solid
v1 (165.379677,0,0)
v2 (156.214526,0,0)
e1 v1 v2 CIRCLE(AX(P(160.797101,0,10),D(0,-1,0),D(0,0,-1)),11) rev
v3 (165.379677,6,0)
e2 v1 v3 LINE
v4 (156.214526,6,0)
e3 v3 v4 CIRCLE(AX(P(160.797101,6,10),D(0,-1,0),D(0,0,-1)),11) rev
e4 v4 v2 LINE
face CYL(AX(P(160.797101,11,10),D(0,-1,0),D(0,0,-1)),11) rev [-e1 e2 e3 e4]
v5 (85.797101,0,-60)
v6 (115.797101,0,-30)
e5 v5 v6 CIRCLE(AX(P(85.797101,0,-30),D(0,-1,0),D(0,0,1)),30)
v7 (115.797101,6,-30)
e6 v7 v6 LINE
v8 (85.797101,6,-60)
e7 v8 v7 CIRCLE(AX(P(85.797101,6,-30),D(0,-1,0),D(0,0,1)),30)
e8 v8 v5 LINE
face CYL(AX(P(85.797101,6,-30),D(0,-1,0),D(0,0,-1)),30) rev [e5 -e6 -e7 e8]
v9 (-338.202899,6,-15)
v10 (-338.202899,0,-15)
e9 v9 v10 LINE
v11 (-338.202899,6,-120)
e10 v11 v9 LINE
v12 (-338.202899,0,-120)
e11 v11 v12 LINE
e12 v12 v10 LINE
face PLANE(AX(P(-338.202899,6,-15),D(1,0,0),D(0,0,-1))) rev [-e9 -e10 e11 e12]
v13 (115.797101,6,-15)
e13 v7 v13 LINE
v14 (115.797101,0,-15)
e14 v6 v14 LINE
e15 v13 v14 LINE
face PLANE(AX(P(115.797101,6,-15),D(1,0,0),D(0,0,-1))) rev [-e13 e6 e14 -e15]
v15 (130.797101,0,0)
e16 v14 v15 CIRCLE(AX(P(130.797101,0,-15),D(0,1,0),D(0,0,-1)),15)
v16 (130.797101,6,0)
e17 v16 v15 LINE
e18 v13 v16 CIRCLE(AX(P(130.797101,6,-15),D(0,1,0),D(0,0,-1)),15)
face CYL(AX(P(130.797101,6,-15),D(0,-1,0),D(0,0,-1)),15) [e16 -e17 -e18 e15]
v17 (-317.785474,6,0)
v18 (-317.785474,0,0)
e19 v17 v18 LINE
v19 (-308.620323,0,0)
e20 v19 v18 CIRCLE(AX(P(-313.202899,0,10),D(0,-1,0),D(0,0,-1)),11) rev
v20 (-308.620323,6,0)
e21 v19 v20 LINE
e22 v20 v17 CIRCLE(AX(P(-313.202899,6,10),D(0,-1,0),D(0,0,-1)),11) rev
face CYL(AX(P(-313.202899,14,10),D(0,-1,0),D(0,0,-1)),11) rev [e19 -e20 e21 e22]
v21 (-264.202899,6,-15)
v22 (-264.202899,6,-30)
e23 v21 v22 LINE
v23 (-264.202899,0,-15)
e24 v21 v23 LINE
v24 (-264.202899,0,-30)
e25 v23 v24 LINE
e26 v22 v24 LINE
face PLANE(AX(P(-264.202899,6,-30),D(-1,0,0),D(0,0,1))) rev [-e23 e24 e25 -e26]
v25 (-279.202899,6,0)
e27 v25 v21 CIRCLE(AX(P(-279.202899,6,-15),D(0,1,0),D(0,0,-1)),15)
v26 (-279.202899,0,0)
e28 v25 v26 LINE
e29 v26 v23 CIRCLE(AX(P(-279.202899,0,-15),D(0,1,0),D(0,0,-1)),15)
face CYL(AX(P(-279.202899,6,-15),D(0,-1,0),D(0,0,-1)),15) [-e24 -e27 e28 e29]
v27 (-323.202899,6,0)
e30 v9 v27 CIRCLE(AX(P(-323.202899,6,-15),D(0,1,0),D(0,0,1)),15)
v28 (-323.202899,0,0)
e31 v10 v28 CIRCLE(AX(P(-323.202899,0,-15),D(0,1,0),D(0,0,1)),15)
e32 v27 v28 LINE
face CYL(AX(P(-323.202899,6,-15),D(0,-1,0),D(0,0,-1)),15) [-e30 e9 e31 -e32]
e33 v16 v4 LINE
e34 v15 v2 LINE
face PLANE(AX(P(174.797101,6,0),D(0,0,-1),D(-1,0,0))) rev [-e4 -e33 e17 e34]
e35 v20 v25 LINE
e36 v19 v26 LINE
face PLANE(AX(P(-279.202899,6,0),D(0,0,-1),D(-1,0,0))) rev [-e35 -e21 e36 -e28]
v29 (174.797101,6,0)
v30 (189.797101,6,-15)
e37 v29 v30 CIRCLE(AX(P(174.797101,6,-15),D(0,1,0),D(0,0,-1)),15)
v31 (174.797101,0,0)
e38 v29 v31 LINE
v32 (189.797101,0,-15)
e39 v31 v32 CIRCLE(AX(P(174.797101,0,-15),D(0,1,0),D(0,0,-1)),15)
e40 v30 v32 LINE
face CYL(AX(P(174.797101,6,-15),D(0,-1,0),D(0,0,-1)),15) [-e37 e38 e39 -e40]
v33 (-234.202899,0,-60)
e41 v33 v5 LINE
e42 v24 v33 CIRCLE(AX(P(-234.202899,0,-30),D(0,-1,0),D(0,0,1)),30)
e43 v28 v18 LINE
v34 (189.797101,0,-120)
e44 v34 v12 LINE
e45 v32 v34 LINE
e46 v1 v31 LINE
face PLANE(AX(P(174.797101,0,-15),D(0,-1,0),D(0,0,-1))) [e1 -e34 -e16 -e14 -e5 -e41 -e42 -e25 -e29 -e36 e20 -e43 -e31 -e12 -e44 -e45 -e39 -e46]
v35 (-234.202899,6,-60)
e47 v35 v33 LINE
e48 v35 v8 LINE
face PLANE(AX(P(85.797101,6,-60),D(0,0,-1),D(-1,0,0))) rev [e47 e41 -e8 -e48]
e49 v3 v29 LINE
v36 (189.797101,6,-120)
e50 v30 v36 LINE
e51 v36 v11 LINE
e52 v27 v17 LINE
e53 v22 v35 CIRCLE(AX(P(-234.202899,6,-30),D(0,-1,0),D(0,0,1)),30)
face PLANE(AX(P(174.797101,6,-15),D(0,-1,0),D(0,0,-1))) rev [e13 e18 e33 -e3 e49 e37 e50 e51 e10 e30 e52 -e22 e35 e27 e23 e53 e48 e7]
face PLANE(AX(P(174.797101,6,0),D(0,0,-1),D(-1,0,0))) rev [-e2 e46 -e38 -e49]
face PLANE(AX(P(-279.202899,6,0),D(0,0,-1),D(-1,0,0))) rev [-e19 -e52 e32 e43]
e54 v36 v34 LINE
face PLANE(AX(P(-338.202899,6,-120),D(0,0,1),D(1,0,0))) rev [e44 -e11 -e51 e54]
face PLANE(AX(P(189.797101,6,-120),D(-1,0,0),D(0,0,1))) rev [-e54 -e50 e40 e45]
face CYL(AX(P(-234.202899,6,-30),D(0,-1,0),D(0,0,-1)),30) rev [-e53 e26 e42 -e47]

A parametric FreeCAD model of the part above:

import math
import FreeCAD as App
import Part
import Sketcher
from FreeCAD import Vector
Q = App.Units.Quantity

doc = App.newDocument("Part")
params = doc.addObject("Spreadsheet::Sheet", "Params")
for row, (alias, value) in enumerate([
    ("sketch1_radius", "15 mm"),
    ("sketch1_radius2", "30 mm"),
    ("sketch1_width", "44 mm"),
    ("sketch1_width2", "320 mm"),
    ("sketch1_height", "105 mm"),
    ("pad1_length", "6 mm"),
    ("sketch2_diameter", "22 mm"),
    ("sketch3_diameter", "22 mm"),
], start=1):
    params.set(f"A{row}", alias)
    params.set(f"B{row}", "=" + value)
    params.setAlias(f"B{row}", alias)

body = doc.addObject("PartDesign::Body", "Body")

# Sketch on XZ plane
sketch1 = body.newObject("Sketcher::SketchObject", "Sketch")
sketch1.AttachmentSupport = (doc.getObject("XZ_Plane"), [""])
sketch1.MapMode = "FlatFace"
sketch1.addGeometry(Part.LineSegment(Vector(-338, -120, 0), Vector(-338, -15, 0)), False)
sketch1.addGeometry(Part.ArcOfCircle(Part.Circle(Vector(-323, -15, 0), Vector(0, 0, 1), 15), math.radians(90), math.radians(180)), False)
sketch1.addGeometry(Part.LineSegment(Vector(-323, 0, 0), Vector(-279, 0, 0)), False)
sketch1.addGeometry(Part.ArcOfCircle(Part.Circle(Vector(-279, -15, 0), Vector(0, 0, 1), 15), math.radians(0), math.radians(90)), False)
sketch1.addGeometry(Part.LineSegment(Vector(-264, -15, 0), Vector(-264, -30, 0)), False)
sketch1.addGeometry(Part.ArcOfCircle(Part.Circle(Vector(-234, -30, 0), Vector(0, 0, 1), 30), math.radians(180), math.radians(270)), False)
sketch1.addGeometry(Part.LineSegment(Vector(-234, -60, 0), Vector(86, -60, 0)), False)
sketch1.addGeometry(Part.ArcOfCircle(Part.Circle(Vector(86, -30, 0), Vector(0, 0, 1), 30), math.radians(-90), math.radians(0)), False)
sketch1.addGeometry(Part.LineSegment(Vector(116, -30, 0), Vector(116, -15, 0)), False)
sketch1.addGeometry(Part.ArcOfCircle(Part.Circle(Vector(131, -15, 0), Vector(0, 0, 1), 15), math.radians(90), math.radians(180)), False)
sketch1.addGeometry(Part.LineSegment(Vector(131, 0, 0), Vector(175, 0, 0)), False)
sketch1.addGeometry(Part.ArcOfCircle(Part.Circle(Vector(175, -15, 0), Vector(0, 0, 1), 15), math.radians(0), math.radians(90)), False)
sketch1.addGeometry(Part.LineSegment(Vector(190, -15, 0), Vector(190, -120, 0)), False)
sketch1.addGeometry(Part.LineSegment(Vector(190, -120, 0), Vector(-338, -120, 0)), False)
sketch1.addConstraint(Sketcher.Constraint("Tangent", 0, 2, 1, 2))
sketch1.addConstraint(Sketcher.Constraint("Tangent", 1, 1, 2, 1))
sketch1.addConstraint(Sketcher.Constraint("Tangent", 2, 2, 3, 2))
sketch1.addConstraint(Sketcher.Constraint("Tangent", 3, 1, 4, 1))
sketch1.addConstraint(Sketcher.Constraint("Tangent", 4, 2, 5, 1))
sketch1.addConstraint(Sketcher.Constraint("Tangent", 5, 2, 6, 1))
sketch1.addConstraint(Sketcher.Constraint("Tangent", 6, 2, 7, 1))
sketch1.addConstraint(Sketcher.Constraint("Tangent", 7, 2, 8, 1))
sketch1.addConstraint(Sketcher.Constraint("Tangent", 8, 2, 9, 2))
sketch1.addConstraint(Sketcher.Constraint("Tangent", 9, 1, 10, 1))
sketch1.addConstraint(Sketcher.Constraint("Tangent", 10, 2, 11, 2))
sketch1.addConstraint(Sketcher.Constraint("Tangent", 11, 1, 12, 1))
sketch1.addConstraint(Sketcher.Constraint("Coincident", 12, 2, 13, 1))
sketch1.addConstraint(Sketcher.Constraint("Coincident", 13, 2, 0, 1))
sketch1.addConstraint(Sketcher.Constraint("Vertical", 0))
sketch1.addConstraint(Sketcher.Constraint("Horizontal", 2))
sketch1.addConstraint(Sketcher.Constraint("Vertical", 4))
sketch1.addConstraint(Sketcher.Constraint("Horizontal", 6))
sketch1.addConstraint(Sketcher.Constraint("Vertical", 8))
sketch1.addConstraint(Sketcher.Constraint("Horizontal", 10))
sketch1.addConstraint(Sketcher.Constraint("Vertical", 12))
sketch1.addConstraint(Sketcher.Constraint("Horizontal", 13))
sketch1.addConstraint(Sketcher.Constraint("Equal", 1, 3))
sketch1.addConstraint(Sketcher.Constraint("Equal", 5, 7))
sketch1.addConstraint(Sketcher.Constraint("Equal", 3, 9))
sketch1.addConstraint(Sketcher.Constraint("Equal", 9, 11))
sketch1.addConstraint(Sketcher.Constraint("PointOnObject", 1, 1, -1))
sketch1.addConstraint(Sketcher.Constraint("PointOnObject", 9, 1, -1))
sketch1.addConstraint(Sketcher.Constraint("Equal", 2, 10))
sketch1.addConstraint(Sketcher.Constraint("Radius", 1, Q("15 mm")))
sketch1.addConstraint(Sketcher.Constraint("Radius", 5, Q("30 mm")))
sketch1.addConstraint(Sketcher.Constraint("DistanceX", 2, 1, 2, 2, Q("44 mm")))
sketch1.addConstraint(Sketcher.Constraint("DistanceX", 6, 1, 6, 2, Q("320 mm")))
sketch1.addConstraint(Sketcher.Constraint("DistanceY", 0, 1, 0, 2, Q("105 mm")))
sketch1.addConstraint(Sketcher.Constraint("DistanceY", 4, 2, 4, 1, Q("15 mm")))
sketch1.addConstraint(Sketcher.Constraint("DistanceX", 1, 3, -1, 1, Q("323.202899 mm")))
sketch1.setExpression("Constraints[29]", "Params.sketch1_radius")
sketch1.setExpression("Constraints[30]", "Params.sketch1_radius2")
sketch1.setExpression("Constraints[31]", "Params.sketch1_width")
sketch1.setExpression("Constraints[32]", "Params.sketch1_width2")
sketch1.setExpression("Constraints[33]", "Params.sketch1_height")
pad1 = body.newObject("PartDesign::Pad", "Pad")
pad1.Profile = sketch1
pad1.setExpression("Length", "Params.pad1_length")
pad1.Reversed = True

# Sketch on XZ plane
sketch2 = body.newObject("Sketcher::SketchObject", "Sketch001")
sketch2.AttachmentSupport = (doc.getObject("XZ_Plane"), [""])
sketch2.MapMode = "FlatFace"
sketch2.addGeometry(Part.Circle(Vector(-313, 10, 0), Vector(0, 0, 1), 11), False)
sketch2.addConstraint(Sketcher.Constraint("Diameter", 0, Q("22 mm")))
sketch2.addConstraint(Sketcher.Constraint("DistanceY", -1, 1, 0, 3, Q("10 mm")))
sketch2.addConstraint(Sketcher.Constraint("DistanceX", 0, 3, -1, 1, Q("313.202899 mm")))
sketch2.setExpression("Constraints[0]", "Params.sketch2_diameter")
pocket1 = body.newObject("PartDesign::Pocket", "Pocket")
pocket1.Profile = sketch2
pocket1.Type = "ThroughAll"
pocket1.Midplane = True

# Sketch on XZ plane
sketch3 = body.newObject("Sketcher::SketchObject", "Sketch002")
sketch3.AttachmentSupport = (doc.getObject("XZ_Plane"), [""])
sketch3.MapMode = "FlatFace"
sketch3.addGeometry(Part.Circle(Vector(161, 10, 0), Vector(0, 0, 1), 11), False)
sketch3.addConstraint(Sketcher.Constraint("Diameter", 0, Q("22 mm")))
sketch3.addConstraint(Sketcher.Constraint("DistanceY", -1, 1, 0, 3, Q("10 mm")))
sketch3.addConstraint(Sketcher.Constraint("DistanceX", -1, 1, 0, 3, Q("160.797101 mm")))
sketch3.setExpression("Constraints[0]", "Params.sketch3_diameter")
pocket2 = body.newObject("PartDesign::Pocket", "Pocket001")
pocket2.Profile = sketch3
pocket2.Type = "ThroughAll"
pocket2.Midplane = True

doc.recompute()
